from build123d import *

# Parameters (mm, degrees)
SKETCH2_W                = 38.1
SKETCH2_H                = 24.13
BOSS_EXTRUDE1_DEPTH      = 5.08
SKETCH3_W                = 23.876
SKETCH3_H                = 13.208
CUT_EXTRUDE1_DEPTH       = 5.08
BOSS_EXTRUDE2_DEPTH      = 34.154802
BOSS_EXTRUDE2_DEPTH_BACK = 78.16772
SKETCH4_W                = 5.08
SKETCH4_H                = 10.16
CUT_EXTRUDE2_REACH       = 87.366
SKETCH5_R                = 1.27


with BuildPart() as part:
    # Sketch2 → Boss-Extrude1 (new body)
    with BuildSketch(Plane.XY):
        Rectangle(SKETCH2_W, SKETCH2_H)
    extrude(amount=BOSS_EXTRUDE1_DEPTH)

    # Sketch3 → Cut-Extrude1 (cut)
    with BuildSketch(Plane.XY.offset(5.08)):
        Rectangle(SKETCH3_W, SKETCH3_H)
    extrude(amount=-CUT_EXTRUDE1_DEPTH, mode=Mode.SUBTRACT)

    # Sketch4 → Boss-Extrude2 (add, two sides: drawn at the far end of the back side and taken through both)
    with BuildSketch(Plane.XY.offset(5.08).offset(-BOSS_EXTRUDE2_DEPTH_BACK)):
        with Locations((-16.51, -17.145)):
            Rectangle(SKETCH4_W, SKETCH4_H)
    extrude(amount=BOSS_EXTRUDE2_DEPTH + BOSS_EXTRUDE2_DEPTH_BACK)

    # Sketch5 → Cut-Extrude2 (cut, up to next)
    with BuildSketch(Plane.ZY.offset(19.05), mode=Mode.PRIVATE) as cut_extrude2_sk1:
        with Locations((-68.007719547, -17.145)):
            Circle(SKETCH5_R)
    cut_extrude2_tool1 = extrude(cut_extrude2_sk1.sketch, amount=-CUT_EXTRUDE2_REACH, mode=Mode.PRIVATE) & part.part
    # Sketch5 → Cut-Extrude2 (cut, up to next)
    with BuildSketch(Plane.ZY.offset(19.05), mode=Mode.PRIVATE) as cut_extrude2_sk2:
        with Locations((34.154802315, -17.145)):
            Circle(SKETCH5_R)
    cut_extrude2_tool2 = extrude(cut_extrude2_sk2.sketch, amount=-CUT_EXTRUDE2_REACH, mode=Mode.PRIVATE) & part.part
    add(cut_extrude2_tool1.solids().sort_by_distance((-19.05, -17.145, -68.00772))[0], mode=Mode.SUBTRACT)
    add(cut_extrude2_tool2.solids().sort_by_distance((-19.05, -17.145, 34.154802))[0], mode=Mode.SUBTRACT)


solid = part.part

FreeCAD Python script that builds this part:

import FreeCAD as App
import Part
import Sketcher

V = App.Vector
Q = App.Units.Quantity

doc = App.newDocument("Part")
body = doc.addObject("PartDesign::Body", "Body")

# Sketch on XY plane
sketch1 = body.newObject("Sketcher::SketchObject", "Sketch")
sketch1.AttachmentSupport = (doc.getObject("XY_Plane"), [""])
sketch1.MapMode = "FlatFace"
sketch1.addGeometry([
    Part.LineSegment(V(-19.05, 12.065, 0), V(-19.05, -12.065, 0)),
    Part.LineSegment(V(-19.05, -12.065, 0), V(19.05, -12.065, 0)),
    Part.LineSegment(V(19.05, -12.065, 0), V(19.05, 12.065, 0)),
    Part.LineSegment(V(19.05, 12.065, 0), V(-19.05, 12.065, 0)),
], False)
sketch1.addConstraint([
    Sketcher.Constraint("Coincident", 0, 2, 1, 1),
    Sketcher.Constraint("Coincident", 1, 2, 2, 1),
    Sketcher.Constraint("Coincident", 2, 2, 3, 1),
    Sketcher.Constraint("Coincident", 3, 2, 0, 1),
    Sketcher.Constraint("Vertical", 0),
    Sketcher.Constraint("Horizontal", 1),
    Sketcher.Constraint("Vertical", 2),
    Sketcher.Constraint("Horizontal", 3),
    Sketcher.Constraint("Symmetric", 0, 2, 2, 2, -1, 1),
    Sketcher.Constraint("DistanceX", 1, 1, 1, 2, Q("1.5 in")),
    Sketcher.Constraint("DistanceY", 0, 2, 0, 1, Q("0.95 in")),
])
pad1 = body.newObject("PartDesign::Pad", "Pad")
pad1.Profile = sketch1
pad1.Length = Q("0.2 in")

# Sketch on XY plane
sketch2 = body.newObject("Sketcher::SketchObject", "Sketch001")
sketch2.AttachmentSupport = (doc.getObject("XY_Plane"), [""])
sketch2.MapMode = "FlatFace"
sketch2.AttachmentOffset = App.Placement(V(0, 0, 0.2 * 25.4), App.Rotation())
sketch2.addGeometry([
    Part.LineSegment(V(-11.938, 6.604, 0), V(-11.938, -6.604, 0)),
    Part.LineSegment(V(-11.938, -6.604, 0), V(11.938, -6.604, 0)),
    Part.LineSegment(V(11.938, -6.604, 0), V(11.938, 6.604, 0)),
    Part.LineSegment(V(11.938, 6.604, 0), V(-11.938, 6.604, 0)),
], False)
sketch2.addConstraint([
    Sketcher.Constraint("Coincident", 0, 2, 1, 1),
    Sketcher.Constraint("Coincident", 1, 2, 2, 1),
    Sketcher.Constraint("Coincident", 2, 2, 3, 1),
    Sketcher.Constraint("Coincident", 3, 2, 0, 1),
    Sketcher.Constraint("Vertical", 0),
    Sketcher.Constraint("Horizontal", 1),
    Sketcher.Constraint("Vertical", 2),
    Sketcher.Constraint("Horizontal", 3),
    Sketcher.Constraint("Symmetric", 0, 2, 2, 2, -1, 1),
    Sketcher.Constraint("DistanceX", 1, 1, 1, 2, Q("0.94 in")),
    Sketcher.Constraint("DistanceY", 0, 2, 0, 1, Q("0.52 in")),
])
pocket1 = body.newObject("PartDesign::Pocket", "Pocket")
pocket1.Profile = sketch2
pocket1.Length = Q("0.2 in")

# Sketch on XY plane
sketch3 = body.newObject("Sketcher::SketchObject", "Sketch002")
sketch3.AttachmentSupport = (doc.getObject("XY_Plane"), [""])
sketch3.MapMode = "FlatFace"
sketch3.AttachmentOffset = App.Placement(V(0, 0, 0.2 * 25.4), App.Rotation())
sketch3.addGeometry([
    Part.LineSegment(V(-19.05, -12.065, 0), V(-19.05, -22.225, 0)),
    Part.LineSegment(V(-19.05, -22.225, 0), V(-13.97, -22.225, 0)),
    Part.LineSegment(V(-13.97, -22.225, 0), V(-13.97, -12.065, 0)),
    Part.LineSegment(V(-13.97, -12.065, 0), V(-19.05, -12.065, 0)),
], False)
sketch3.addConstraint([
    Sketcher.Constraint("Coincident", 0, 2, 1, 1),
    Sketcher.Constraint("Coincident", 1, 2, 2, 1),
    Sketcher.Constraint("Coincident", 2, 2, 3, 1),
    Sketcher.Constraint("Coincident", 3, 2, 0, 1),
    Sketcher.Constraint("Vertical", 0),
    Sketcher.Constraint("Horizontal", 1),
    Sketcher.Constraint("Vertical", 2),
    Sketcher.Constraint("Horizontal", 3),
    Sketcher.Constraint("DistanceX", 1, 1, 1, 2, Q("0.2 in")),
    Sketcher.Constraint("DistanceY", 0, 2, 0, 1, Q("0.4 in")),
    Sketcher.Constraint("DistanceX", 0, 2, -1, 1, Q("0.75 in")),
    Sketcher.Constraint("DistanceY", 0, 2, -1, 1, Q("0.875 in")),
])
pad2 = body.newObject("PartDesign::Pad", "Pad001")
pad2.Profile = sketch3
pad2.Type = "TwoLengths"
pad2.Length = 34.154802
pad2.Length2 = 78.16772

# Sketch on YZ plane
sketch4 = body.newObject("Sketcher::SketchObject", "Sketch003")
sketch4.AttachmentSupport = (doc.getObject("YZ_Plane"), [""])
sketch4.MapMode = "FlatFace"
sketch4.AttachmentOffset = App.Placement(V(0, 0, -0.75 * 25.4), App.Rotation())
sketch4.addGeometry(Part.Circle(V(-17.145, -68.00772, 0), V(0, 0, 1), 1.27), False)
sketch4.addConstraint([
    Sketcher.Constraint("Diameter", 0, Q("0.1 in")),
    Sketcher.Constraint("DistanceX", 0, 3, -1, 1, Q("0.675 in")),
    Sketcher.Constraint("DistanceY", 0, 3, -1, 1, Q("68.00772 mm")),
])
pocket2 = body.newObject("PartDesign::Pocket", "Pocket001")
pocket2.Profile = sketch4
pocket2.Type = "UpToFirst"
pocket2.Reversed = True

# Sketch on YZ plane
sketch5 = body.newObject("Sketcher::SketchObject", "Sketch004")
sketch5.AttachmentSupport = (doc.getObject("YZ_Plane"), [""])
sketch5.MapMode = "FlatFace"
sketch5.AttachmentOffset = App.Placement(V(0, 0, -0.75 * 25.4), App.Rotation())
sketch5.addGeometry(Part.Circle(V(-17.145, 34.154802, 0), V(0, 0, 1), 1.27), False)
sketch5.addConstraint([
    Sketcher.Constraint("Diameter", 0, Q("0.1 in")),
    Sketcher.Constraint("DistanceX", 0, 3, -1, 1, Q("0.675 in")),
    Sketcher.Constraint("DistanceY", -1, 1, 0, 3, Q("34.154802 mm")),
])
pocket3 = body.newObject("PartDesign::Pocket", "Pocket002")
pocket3.Profile = sketch5
pocket3.Type = "UpToFirst"
pocket3.Reversed = True

doc.recompute()
